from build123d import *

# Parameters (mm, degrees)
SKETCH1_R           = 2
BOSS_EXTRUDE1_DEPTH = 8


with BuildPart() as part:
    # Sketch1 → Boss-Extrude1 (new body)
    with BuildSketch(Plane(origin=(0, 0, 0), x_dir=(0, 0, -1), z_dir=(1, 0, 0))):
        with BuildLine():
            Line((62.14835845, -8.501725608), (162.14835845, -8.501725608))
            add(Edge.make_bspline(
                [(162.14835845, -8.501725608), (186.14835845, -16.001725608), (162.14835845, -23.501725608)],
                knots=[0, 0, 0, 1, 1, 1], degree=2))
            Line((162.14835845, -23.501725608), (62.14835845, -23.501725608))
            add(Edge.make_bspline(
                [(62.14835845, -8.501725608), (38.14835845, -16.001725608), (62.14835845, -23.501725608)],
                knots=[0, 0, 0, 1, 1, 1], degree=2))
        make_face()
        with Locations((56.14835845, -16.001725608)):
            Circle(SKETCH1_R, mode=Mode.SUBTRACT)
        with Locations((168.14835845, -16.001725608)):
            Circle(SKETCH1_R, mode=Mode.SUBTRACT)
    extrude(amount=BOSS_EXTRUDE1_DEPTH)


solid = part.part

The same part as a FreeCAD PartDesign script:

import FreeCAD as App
import Part
import Sketcher

V = App.Vector
Q = App.Units.Quantity

doc = App.newDocument("Part")
params = doc.addObject("Spreadsheet::Sheet", "Params")
for row, (alias, value) in enumerate([
    ("sketch1_diameter", "4 mm"),
    ("pad1_length", "8 mm"),
], start=1):
    params.set(f"A{row}", alias)
    params.set(f"B{row}", "=" + value)
    params.setAlias(f"B{row}", alias)

body = doc.addObject("PartDesign::Body", "Body")

# Sketch on YZ plane
sketch1 = body.newObject("Sketcher::SketchObject", "Sketch")
sketch1.AttachmentSupport = (doc.getObject("YZ_Plane"), [""])
sketch1.MapMode = "FlatFace"
sketch1.addGeometry(Part.LineSegment(V(-8.501726, -162.148358, 0), V(-8.501726, -62.148358, 0)), False)
sketch1.addGeometry(Part.BSplineCurve([V(-8.501726, -62.148358, 0), V(-16.001726, -38.148358, 0), V(-23.501726, -62.148358, 0)], [3, 3], [0, 1], False, 2, [1, 1, 1], False), False)
sketch1.addGeometry(Part.LineSegment(V(-23.501726, -62.148358, 0), V(-23.501726, -162.148358, 0)), False)
sketch1.addGeometry(Part.BSplineCurve([V(-8.501726, -162.148358, 0), V(-16.001726, -186.148358, 0), V(-23.501726, -162.148358, 0)], [3, 3], [0, 1], False, 2, [1, 1, 1], False), False)
sketch1.addGeometry(Part.Circle(V(-16.001726, -168.148358, 0), V(0, 0, 1), 2), False)
sketch1.addGeometry(Part.Circle(V(-16.001726, -56.148358, 0), V(0, 0, 1), 2), False)
sketch1.addConstraint(Sketcher.Constraint("Block", 1))
sketch1.addConstraint(Sketcher.Constraint("Block", 3))
sketch1.addConstraint(Sketcher.Constraint("Coincident", 0, 2, 1, 1))
sketch1.addConstraint(Sketcher.Constraint("Coincident", 1, 2, 2, 1))
sketch1.addConstraint(Sketcher.Constraint("Coincident", 2, 2, 3, 2))
sketch1.addConstraint(Sketcher.Constraint("Coincident", 3, 1, 0, 1))
sketch1.addConstraint(Sketcher.Constraint("Equal", 4, 5))
sketch1.addConstraint(Sketcher.Constraint("Vertical", 4, 3, 5, 3))
sketch1.addConstraint(Sketcher.Constraint("Diameter", 4, Q("4 mm")))
sketch1.addConstraint(Sketcher.Constraint("DistanceY", 4, 3, 5, 3, Q("112 mm")))
sketch1.addConstraint(Sketcher.Constraint("DistanceY", 0, 2, 5, 3, Q("6 mm")))
sketch1.addConstraint(Sketcher.Constraint("DistanceX", 5, 3, 0, 2, Q("7.5 mm")))
sketch1.setExpression("Constraints[8]", "Params.sketch1_diameter")
pad1 = body.newObject("PartDesign::Pad", "Pad")
pad1.Profile = sketch1
pad1.setExpression("Length", "Params.pad1_length")

doc.recompute()
